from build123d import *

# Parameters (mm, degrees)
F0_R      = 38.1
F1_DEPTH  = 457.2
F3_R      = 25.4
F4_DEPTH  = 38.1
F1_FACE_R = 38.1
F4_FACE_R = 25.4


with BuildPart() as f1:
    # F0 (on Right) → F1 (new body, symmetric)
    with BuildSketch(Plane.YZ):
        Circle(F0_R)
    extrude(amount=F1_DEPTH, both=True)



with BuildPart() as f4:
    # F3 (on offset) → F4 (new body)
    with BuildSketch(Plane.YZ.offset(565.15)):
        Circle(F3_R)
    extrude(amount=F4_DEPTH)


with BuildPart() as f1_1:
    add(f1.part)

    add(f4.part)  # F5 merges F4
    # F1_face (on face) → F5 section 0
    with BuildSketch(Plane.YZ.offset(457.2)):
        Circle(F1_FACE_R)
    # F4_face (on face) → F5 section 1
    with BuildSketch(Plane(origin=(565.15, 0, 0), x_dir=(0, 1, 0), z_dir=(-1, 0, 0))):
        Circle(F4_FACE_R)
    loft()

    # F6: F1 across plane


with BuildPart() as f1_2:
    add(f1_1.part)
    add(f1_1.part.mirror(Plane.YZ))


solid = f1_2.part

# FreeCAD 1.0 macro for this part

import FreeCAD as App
import Part
import Sketcher

V = App.Vector
Q = App.Units.Quantity

doc = App.newDocument("Part")
body = doc.addObject("PartDesign::Body", "Body")

# Sketch on YZ plane
sketch1 = body.newObject("Sketcher::SketchObject", "Sketch")
sketch1.AttachmentSupport = (doc.getObject("YZ_Plane"), [""])
sketch1.MapMode = "FlatFace"
sketch1.addGeometry(Part.Circle(V(0, 0, 0), V(0, 0, 1), 38.1), False)
sketch1.addConstraint([
    Sketcher.Constraint("Coincident", 0, 3, -1, 1),
    Sketcher.Constraint("Diameter", 0, Q("3 in")),
])
pad1 = body.newObject("PartDesign::Pad", "Pad")
pad1.Profile = sketch1
pad1.Length = Q("36 in")
pad1.Midplane = True
body2 = doc.addObject("PartDesign::Body", "Body001")

# Sketch on YZ plane
sketch2 = body2.newObject("Sketcher::SketchObject", "Sketch001")
sketch2.AttachmentSupport = (doc.getObject("YZ_Plane001"), [""])
sketch2.MapMode = "FlatFace"
sketch2.AttachmentOffset = App.Placement(V(0, 0, 22.25 * 25.4), App.Rotation())
sketch2.addGeometry(Part.Circle(V(0, 0, 0), V(0, 0, 1), 25.4), False)
sketch2.addConstraint([
    Sketcher.Constraint("Coincident", 0, 3, -1, 1),
    Sketcher.Constraint("Diameter", 0, Q("2 in")),
])
pad2 = body2.newObject("PartDesign::Pad", "Pad001")
pad2.Profile = sketch2
pad2.Length = Q("1.5 in")
body.AllowCompound = True
doc.recompute()

boolean = body.newObject("PartDesign::Boolean", "Boolean")
boolean.Type = "Fuse"
boolean.addObjects([body2])

# Sketch on YZ plane
sketch3 = body.newObject("Sketcher::SketchObject", "Sketch002")
sketch3.AttachmentSupport = (doc.getObject("YZ_Plane"), [""])
sketch3.MapMode = "FlatFace"
sketch3.AttachmentOffset = App.Placement(V(0, 0, 18 * 25.4), App.Rotation())
sketch3.addGeometry(Part.Circle(V(0, 0, 0), V(0, 0, 1), 38.1), False)
sketch3.addConstraint([
    Sketcher.Constraint("Coincident", 0, 3, -1, 1),
    Sketcher.Constraint("Diameter", 0, Q("3 in")),
])

# Sketch on YZ plane
sketch4 = body.newObject("Sketcher::SketchObject", "Sketch003")
sketch4.AttachmentSupport = (doc.getObject("YZ_Plane"), [""])
sketch4.MapMode = "FlatFace"
sketch4.AttachmentOffset = App.Placement(V(0, 0, 22.25 * 25.4), App.Rotation())
sketch4.addGeometry(Part.Circle(V(0, 0, 0), V(0, 0, 1), 25.4), False)
sketch4.addConstraint([
    Sketcher.Constraint("Coincident", 0, 3, -1, 1),
    Sketcher.Constraint("Diameter", 0, Q("2 in")),
])

additiveloft = body.newObject("PartDesign::AdditiveLoft", "AdditiveLoft")
additiveloft.Profile = sketch3
additiveloft.Sections = [sketch4]
body3 = doc.addObject("PartDesign::Body", "Body002")
doc.recompute()

body3.BaseFeature = body
doc.recompute()

mirroring = doc.addObject("Part::Mirroring", "Mirroring")
mirroring.Source = body
mirroring.Base = V(0, 0, 0)
mirroring.Normal = V(1, 0, 0)
body4 = doc.addObject("PartDesign::Body", "Body003")
body4.BaseFeature = mirroring
boolean2 = body3.newObject("PartDesign::Boolean", "Boolean001")
boolean2.Type = "Fuse"
boolean2.addObjects([body4])
doc.recompute()
mirroring.Visibility = False

doc.recompute()
